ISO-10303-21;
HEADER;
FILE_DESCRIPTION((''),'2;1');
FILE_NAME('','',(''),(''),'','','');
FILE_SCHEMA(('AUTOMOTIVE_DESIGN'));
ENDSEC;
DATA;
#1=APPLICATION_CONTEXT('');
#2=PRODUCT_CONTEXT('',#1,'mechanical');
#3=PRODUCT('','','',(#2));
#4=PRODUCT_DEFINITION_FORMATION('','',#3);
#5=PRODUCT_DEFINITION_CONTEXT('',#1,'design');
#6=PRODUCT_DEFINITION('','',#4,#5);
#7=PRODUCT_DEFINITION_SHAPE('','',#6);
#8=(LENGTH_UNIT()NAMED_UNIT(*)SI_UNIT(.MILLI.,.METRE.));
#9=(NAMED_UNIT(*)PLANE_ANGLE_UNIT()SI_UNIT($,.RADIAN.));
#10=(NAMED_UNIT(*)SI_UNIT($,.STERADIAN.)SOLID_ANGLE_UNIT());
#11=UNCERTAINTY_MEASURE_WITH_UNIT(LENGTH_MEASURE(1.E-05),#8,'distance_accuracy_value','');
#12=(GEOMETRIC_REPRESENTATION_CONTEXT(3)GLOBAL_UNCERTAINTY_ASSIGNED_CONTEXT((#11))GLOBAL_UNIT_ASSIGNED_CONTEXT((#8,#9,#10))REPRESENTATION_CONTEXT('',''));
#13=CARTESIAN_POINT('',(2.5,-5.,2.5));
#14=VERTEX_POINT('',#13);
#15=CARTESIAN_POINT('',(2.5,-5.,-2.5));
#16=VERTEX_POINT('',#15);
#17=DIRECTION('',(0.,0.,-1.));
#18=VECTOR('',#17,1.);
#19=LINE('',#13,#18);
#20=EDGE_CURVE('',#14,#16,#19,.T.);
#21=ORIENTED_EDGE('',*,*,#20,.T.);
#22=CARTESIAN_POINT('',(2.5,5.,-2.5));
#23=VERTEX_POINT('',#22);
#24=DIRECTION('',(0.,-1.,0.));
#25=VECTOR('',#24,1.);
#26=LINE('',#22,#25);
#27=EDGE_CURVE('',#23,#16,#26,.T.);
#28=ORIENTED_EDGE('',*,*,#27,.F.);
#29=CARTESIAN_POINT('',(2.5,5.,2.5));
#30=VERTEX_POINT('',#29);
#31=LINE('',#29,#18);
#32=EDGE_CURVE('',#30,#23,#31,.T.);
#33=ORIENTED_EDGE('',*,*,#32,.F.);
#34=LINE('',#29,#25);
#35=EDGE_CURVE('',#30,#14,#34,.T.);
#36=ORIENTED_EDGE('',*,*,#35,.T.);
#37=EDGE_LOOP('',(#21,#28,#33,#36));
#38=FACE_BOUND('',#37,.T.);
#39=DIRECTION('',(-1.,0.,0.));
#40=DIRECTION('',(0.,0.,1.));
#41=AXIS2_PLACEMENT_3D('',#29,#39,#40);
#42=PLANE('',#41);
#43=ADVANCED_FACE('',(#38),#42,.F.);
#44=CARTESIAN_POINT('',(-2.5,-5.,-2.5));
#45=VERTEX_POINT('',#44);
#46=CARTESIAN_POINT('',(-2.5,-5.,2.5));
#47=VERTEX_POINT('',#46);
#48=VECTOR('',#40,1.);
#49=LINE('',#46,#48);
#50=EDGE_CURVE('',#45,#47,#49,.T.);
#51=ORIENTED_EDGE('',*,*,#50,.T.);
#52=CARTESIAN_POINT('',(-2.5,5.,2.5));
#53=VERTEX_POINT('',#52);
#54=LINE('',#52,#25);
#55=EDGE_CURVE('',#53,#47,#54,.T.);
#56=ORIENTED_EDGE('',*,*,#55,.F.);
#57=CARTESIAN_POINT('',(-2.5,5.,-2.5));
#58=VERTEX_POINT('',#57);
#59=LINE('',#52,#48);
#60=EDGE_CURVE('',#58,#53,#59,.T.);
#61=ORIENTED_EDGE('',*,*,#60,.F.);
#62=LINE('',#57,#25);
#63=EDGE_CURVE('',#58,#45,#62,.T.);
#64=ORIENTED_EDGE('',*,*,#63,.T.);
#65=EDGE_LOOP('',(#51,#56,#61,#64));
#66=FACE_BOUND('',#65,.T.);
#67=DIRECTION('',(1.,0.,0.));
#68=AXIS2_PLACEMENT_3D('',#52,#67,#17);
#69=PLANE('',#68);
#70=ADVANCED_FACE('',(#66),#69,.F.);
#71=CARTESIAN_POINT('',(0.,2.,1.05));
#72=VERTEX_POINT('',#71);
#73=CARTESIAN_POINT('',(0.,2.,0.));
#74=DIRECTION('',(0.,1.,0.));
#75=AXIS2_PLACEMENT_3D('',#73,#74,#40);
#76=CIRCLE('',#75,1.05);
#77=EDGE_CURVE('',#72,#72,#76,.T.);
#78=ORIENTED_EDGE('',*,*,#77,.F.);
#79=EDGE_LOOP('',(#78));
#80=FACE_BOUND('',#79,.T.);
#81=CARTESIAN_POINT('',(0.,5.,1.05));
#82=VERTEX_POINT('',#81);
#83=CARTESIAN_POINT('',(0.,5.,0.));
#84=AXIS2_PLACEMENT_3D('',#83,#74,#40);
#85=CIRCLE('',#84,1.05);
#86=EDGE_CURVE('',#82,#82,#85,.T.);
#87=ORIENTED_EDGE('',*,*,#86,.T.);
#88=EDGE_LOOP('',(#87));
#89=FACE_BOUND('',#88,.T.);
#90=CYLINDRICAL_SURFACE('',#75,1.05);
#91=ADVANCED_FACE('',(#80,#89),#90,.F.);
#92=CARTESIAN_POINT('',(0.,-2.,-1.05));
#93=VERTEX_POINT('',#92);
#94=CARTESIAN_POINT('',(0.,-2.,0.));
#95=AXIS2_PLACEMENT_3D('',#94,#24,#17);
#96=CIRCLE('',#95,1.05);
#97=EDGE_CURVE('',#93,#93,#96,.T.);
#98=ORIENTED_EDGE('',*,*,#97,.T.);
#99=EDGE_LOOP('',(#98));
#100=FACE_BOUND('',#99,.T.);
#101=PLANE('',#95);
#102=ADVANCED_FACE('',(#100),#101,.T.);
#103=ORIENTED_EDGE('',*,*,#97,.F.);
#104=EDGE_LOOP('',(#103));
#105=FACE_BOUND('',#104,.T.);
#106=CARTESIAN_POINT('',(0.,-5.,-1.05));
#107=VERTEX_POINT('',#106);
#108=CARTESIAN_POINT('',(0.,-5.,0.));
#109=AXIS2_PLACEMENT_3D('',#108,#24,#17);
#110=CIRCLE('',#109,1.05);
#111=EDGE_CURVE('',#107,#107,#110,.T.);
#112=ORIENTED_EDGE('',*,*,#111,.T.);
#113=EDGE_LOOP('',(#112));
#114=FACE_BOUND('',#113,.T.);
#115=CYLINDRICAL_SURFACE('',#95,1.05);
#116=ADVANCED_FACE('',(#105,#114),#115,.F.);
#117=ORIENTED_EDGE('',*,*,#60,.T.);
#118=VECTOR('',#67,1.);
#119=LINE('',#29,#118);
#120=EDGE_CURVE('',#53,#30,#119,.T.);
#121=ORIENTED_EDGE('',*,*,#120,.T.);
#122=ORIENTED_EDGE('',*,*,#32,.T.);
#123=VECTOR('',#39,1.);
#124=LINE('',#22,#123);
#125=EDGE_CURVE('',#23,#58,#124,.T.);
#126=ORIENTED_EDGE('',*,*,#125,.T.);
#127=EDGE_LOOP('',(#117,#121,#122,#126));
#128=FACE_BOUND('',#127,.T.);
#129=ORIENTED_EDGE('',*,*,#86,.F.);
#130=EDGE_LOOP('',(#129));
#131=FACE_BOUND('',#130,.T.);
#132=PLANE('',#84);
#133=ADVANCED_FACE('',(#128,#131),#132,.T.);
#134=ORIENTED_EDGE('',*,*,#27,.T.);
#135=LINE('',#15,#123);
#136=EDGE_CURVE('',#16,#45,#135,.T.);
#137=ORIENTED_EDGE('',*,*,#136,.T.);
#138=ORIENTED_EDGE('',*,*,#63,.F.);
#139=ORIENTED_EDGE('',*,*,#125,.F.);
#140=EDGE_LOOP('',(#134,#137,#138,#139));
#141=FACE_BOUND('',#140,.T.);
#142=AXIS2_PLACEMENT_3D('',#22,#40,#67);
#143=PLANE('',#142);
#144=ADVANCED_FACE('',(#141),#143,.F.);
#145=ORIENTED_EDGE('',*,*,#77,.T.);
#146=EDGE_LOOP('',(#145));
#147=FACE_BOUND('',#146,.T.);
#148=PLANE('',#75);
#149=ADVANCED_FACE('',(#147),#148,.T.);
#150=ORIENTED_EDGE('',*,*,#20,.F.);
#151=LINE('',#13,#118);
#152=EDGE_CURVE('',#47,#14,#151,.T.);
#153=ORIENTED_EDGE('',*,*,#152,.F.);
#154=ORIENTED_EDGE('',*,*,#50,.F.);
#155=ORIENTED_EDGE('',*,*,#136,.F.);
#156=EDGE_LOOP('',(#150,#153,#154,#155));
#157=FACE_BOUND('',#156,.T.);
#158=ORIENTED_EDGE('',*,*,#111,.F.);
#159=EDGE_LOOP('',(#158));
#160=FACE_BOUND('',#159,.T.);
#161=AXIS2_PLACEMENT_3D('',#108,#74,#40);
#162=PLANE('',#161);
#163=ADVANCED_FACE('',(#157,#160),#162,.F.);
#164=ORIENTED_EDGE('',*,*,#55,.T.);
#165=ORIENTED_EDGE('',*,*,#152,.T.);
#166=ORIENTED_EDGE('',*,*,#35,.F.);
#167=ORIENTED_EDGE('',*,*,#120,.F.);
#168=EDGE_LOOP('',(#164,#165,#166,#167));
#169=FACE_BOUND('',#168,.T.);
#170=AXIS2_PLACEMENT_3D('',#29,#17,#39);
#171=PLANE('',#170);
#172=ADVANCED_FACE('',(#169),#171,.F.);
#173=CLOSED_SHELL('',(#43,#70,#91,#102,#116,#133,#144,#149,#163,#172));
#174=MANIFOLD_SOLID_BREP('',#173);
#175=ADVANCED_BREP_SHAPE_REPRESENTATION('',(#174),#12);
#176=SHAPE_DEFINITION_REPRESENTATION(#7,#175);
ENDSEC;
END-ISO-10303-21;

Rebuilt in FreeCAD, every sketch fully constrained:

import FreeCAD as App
import Part
import Sketcher

V = App.Vector

doc = App.newDocument("Part")
body = doc.addObject("PartDesign::Body", "Body")

# Sketch on XZ plane
sketch1 = body.newObject("Sketcher::SketchObject", "Sketch")
sketch1.AttachmentSupport = (doc.getObject("XZ_Plane"), [""])
sketch1.MapMode = "FlatFace"
sketch1.addGeometry([
    Part.LineSegment(V(-2, -2, 0), V(-2, 2, 0)),
    Part.LineSegment(V(-2, 2, 0), V(2, 2, 0)),
    Part.LineSegment(V(2, 2, 0), V(2, -2, 0)),
    Part.LineSegment(V(2, -2, 0), V(-2, -2, 0)),
], False)
sketch1.addConstraint([
    Sketcher.Constraint("Coincident", 0, 2, 1, 1),
    Sketcher.Constraint("Coincident", 1, 2, 2, 1),
    Sketcher.Constraint("Coincident", 2, 2, 3, 1),
    Sketcher.Constraint("Coincident", 3, 2, 0, 1),
    Sketcher.Constraint("Vertical", 0),
    Sketcher.Constraint("Horizontal", 1),
    Sketcher.Constraint("Vertical", 2),
    Sketcher.Constraint("Horizontal", 3),
    Sketcher.Constraint("Symmetric", 0, 2, 2, 2, -1, 1),
    Sketcher.Constraint("Equal", 3, 0),
    Sketcher.Constraint("DistanceX", 1, 1, 1, 2, 5.0),
])
pad1 = body.newObject("PartDesign::Pad", "Pad")
pad1.Profile = sketch1
pad1.Length = 10
pad1.Midplane = True

# Sketch on XZ plane
sketch2 = body.newObject("Sketcher::SketchObject", "Sketch001")
sketch2.AttachmentSupport = (doc.getObject("XZ_Plane"), [""])
sketch2.MapMode = "FlatFace"
sketch2.AttachmentOffset = App.Placement(V(0, 0, -5), App.Rotation())
sketch2.addGeometry(Part.Circle(V(0, 0, 0), V(0, 0, 1), 1.1), False)
sketch2.addConstraint([
    Sketcher.Constraint("Coincident", 0, 3, -1, 1),
    Sketcher.Constraint("Diameter", 0, 2.1),
])
pocket1 = body.newObject("PartDesign::Pocket", "Pocket")
pocket1.Profile = sketch2
pocket1.Length = 3
pocket1.Reversed = True

# Sketch on XZ plane
sketch3 = body.newObject("Sketcher::SketchObject", "Sketch002")
sketch3.AttachmentSupport = (doc.getObject("XZ_Plane"), [""])
sketch3.MapMode = "FlatFace"
sketch3.AttachmentOffset = App.Placement(V(0, 0, 2), App.Rotation())
sketch3.addGeometry(Part.Circle(V(0, 0, 0), V(0, 0, 1), 1.1), False)
sketch3.addConstraint([
    Sketcher.Constraint("Coincident", 0, 3, -1, 1),
    Sketcher.Constraint("Diameter", 0, 2.1),
])
pocket2 = body.newObject("PartDesign::Pocket", "Pocket001")
pocket2.Profile = sketch3
pocket2.Length = 3
pocket2.Reversed = True

doc.recompute()
